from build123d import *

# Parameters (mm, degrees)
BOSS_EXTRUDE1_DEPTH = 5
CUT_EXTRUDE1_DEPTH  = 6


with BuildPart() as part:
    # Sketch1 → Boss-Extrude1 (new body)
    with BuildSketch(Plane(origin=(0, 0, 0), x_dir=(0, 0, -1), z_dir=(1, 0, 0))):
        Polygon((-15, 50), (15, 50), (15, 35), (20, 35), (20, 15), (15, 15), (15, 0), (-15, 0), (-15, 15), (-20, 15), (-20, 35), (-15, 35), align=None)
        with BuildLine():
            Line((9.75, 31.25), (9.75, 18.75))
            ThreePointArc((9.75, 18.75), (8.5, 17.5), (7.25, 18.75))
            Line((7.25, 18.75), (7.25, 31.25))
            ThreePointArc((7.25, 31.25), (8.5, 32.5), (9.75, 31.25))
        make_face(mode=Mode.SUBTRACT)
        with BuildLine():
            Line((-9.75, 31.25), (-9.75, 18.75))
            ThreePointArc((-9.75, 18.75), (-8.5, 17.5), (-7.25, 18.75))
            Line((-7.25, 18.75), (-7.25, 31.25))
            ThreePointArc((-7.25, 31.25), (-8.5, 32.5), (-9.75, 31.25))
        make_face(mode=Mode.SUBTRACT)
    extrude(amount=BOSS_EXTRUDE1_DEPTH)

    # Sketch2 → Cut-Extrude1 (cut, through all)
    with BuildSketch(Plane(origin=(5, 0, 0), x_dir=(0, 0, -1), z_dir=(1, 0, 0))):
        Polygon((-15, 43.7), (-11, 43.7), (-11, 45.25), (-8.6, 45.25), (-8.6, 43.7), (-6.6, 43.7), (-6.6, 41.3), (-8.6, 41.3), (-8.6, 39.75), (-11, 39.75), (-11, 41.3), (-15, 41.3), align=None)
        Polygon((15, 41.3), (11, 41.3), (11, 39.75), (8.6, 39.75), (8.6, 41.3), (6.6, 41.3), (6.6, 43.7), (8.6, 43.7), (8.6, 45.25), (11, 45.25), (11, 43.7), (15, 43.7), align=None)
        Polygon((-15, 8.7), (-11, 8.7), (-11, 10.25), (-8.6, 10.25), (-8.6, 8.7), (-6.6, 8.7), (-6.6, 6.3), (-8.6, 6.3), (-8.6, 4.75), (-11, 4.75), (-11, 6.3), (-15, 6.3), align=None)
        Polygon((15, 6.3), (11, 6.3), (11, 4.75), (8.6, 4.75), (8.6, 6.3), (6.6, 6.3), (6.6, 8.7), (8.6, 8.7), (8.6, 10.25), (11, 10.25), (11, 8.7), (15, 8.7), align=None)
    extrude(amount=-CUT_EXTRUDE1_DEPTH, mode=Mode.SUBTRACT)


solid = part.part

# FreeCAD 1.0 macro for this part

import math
import FreeCAD as App
import Part
import Sketcher

doc = App.newDocument("Part")
body = doc.addObject("PartDesign::Body", "Body")

sketch1 = doc.addObject("Sketcher::SketchObject", "Sketch")
body.addObject(sketch1)
sketch1.AttachmentSupport = (doc.YZ_Plane, [""])
sketch1.MapMode = "FlatFace"
sketch1.addGeometry(Part.LineSegment(App.Vector(50, -15, 0), App.Vector(50, 15, 0)), False)
sketch1.addGeometry(Part.LineSegment(App.Vector(50, 15, 0), App.Vector(35, 15, 0)), False)
sketch1.addGeometry(Part.LineSegment(App.Vector(35, 15, 0), App.Vector(35, 20, 0)), False)
sketch1.addGeometry(Part.LineSegment(App.Vector(35, 20, 0), App.Vector(15, 20, 0)), False)
sketch1.addGeometry(Part.LineSegment(App.Vector(15, 20, 0), App.Vector(15, 15, 0)), False)
sketch1.addGeometry(Part.LineSegment(App.Vector(15, 15, 0), App.Vector(0, 15, 0)), False)
sketch1.addGeometry(Part.LineSegment(App.Vector(0, 15, 0), App.Vector(0, -15, 0)), False)
sketch1.addGeometry(Part.LineSegment(App.Vector(0, -15, 0), App.Vector(15, -15, 0)), False)
sketch1.addGeometry(Part.LineSegment(App.Vector(15, -15, 0), App.Vector(15, -20, 0)), False)
sketch1.addGeometry(Part.LineSegment(App.Vector(15, -20, 0), App.Vector(35, -20, 0)), False)
sketch1.addGeometry(Part.LineSegment(App.Vector(35, -20, 0), App.Vector(35, -15, 0)), False)
sketch1.addGeometry(Part.LineSegment(App.Vector(35, -15, 0), App.Vector(50, -15, 0)), False)
sketch1.addGeometry(Part.LineSegment(App.Vector(31.2, -9.8, 0), App.Vector(18.8, -9.8, 0)), False)
sketch1.addGeometry(Part.ArcOfCircle(Part.Circle(App.Vector(18.8, -8.5, 0), App.Vector(0, 0, 1), 1.2), math.radians(90), math.radians(270)), False)
sketch1.addGeometry(Part.LineSegment(App.Vector(18.8, -7.2, 0), App.Vector(31.2, -7.2, 0)), False)
sketch1.addGeometry(Part.ArcOfCircle(Part.Circle(App.Vector(31.2, -8.5, 0), App.Vector(0, 0, 1), 1.2), math.radians(-90), math.radians(90)), False)
sketch1.addGeometry(Part.ArcOfCircle(Part.Circle(App.Vector(31.2, 8.5, 0), App.Vector(0, 0, 1), 1.2), math.radians(-90), math.radians(90)), False)
sketch1.addGeometry(Part.LineSegment(App.Vector(31.2, 7.2, 0), App.Vector(18.8, 7.2, 0)), False)
sketch1.addGeometry(Part.ArcOfCircle(Part.Circle(App.Vector(18.8, 8.5, 0), App.Vector(0, 0, 1), 1.2), math.radians(90), math.radians(270)), False)
sketch1.addGeometry(Part.LineSegment(App.Vector(18.8, 9.8, 0), App.Vector(31.2, 9.8, 0)), False)
sketch1.addConstraint(Sketcher.Constraint("Coincident", 0, 2, 1, 1))
sketch1.addConstraint(Sketcher.Constraint("Coincident", 1, 2, 2, 1))
sketch1.addConstraint(Sketcher.Constraint("Coincident", 2, 2, 3, 1))
sketch1.addConstraint(Sketcher.Constraint("Coincident", 3, 2, 4, 1))
sketch1.addConstraint(Sketcher.Constraint("Coincident", 4, 2, 5, 1))
sketch1.addConstraint(Sketcher.Constraint("Coincident", 5, 2, 6, 1))
sketch1.addConstraint(Sketcher.Constraint("Coincident", 6, 2, 7, 1))
sketch1.addConstraint(Sketcher.Constraint("Coincident", 7, 2, 8, 1))
sketch1.addConstraint(Sketcher.Constraint("Coincident", 8, 2, 9, 1))
sketch1.addConstraint(Sketcher.Constraint("Coincident", 9, 2, 10, 1))
sketch1.addConstraint(Sketcher.Constraint("Coincident", 10, 2, 11, 1))
sketch1.addConstraint(Sketcher.Constraint("Coincident", 11, 2, 0, 1))
sketch1.addConstraint(Sketcher.Constraint("Tangent", 12, 2, 13, 2))
sketch1.addConstraint(Sketcher.Constraint("Tangent", 13, 1, 14, 1))
sketch1.addConstraint(Sketcher.Constraint("Tangent", 14, 2, 15, 2))
sketch1.addConstraint(Sketcher.Constraint("Tangent", 15, 1, 12, 1))
sketch1.addConstraint(Sketcher.Constraint("Tangent", 16, 1, 17, 1))
sketch1.addConstraint(Sketcher.Constraint("Tangent", 17, 2, 18, 2))
sketch1.addConstraint(Sketcher.Constraint("Tangent", 18, 1, 19, 1))
sketch1.addConstraint(Sketcher.Constraint("Tangent", 19, 2, 16, 2))
sketch1.addConstraint(Sketcher.Constraint("Vertical", 0))
sketch1.addConstraint(Sketcher.Constraint("Horizontal", 1))
sketch1.addConstraint(Sketcher.Constraint("Vertical", 2))
sketch1.addConstraint(Sketcher.Constraint("Horizontal", 3))
sketch1.addConstraint(Sketcher.Constraint("Vertical", 4))
sketch1.addConstraint(Sketcher.Constraint("Horizontal", 5))
sketch1.addConstraint(Sketcher.Constraint("Vertical", 6))
sketch1.addConstraint(Sketcher.Constraint("Horizontal", 7))
sketch1.addConstraint(Sketcher.Constraint("Vertical", 8))
sketch1.addConstraint(Sketcher.Constraint("Horizontal", 9))
sketch1.addConstraint(Sketcher.Constraint("Vertical", 10))
sketch1.addConstraint(Sketcher.Constraint("Horizontal", 11))
sketch1.addConstraint(Sketcher.Constraint("Horizontal", 12))
sketch1.addConstraint(Sketcher.Constraint("Horizontal", 14))
sketch1.addConstraint(Sketcher.Constraint("Horizontal", 17))
sketch1.addConstraint(Sketcher.Constraint("Horizontal", 19))
sketch1.addConstraint(Sketcher.Constraint("Equal", 15, 16))
sketch1.addConstraint(Sketcher.Constraint("Symmetric", 5, 2, 6, 2, -1, 1))
sketch1.addConstraint(Sketcher.Constraint("Symmetric", 15, 3, 16, 3, -1))
sketch1.addConstraint(Sketcher.Constraint("Symmetric", 3, 2, 8, 2, -1))
sketch1.addConstraint(Sketcher.Constraint("Symmetric", 1, 2, 10, 2, -1))
sketch1.addConstraint(Sketcher.Constraint("Horizontal", 1, 2, 4, 2))
sketch1.addConstraint(Sketcher.Constraint("Vertical", 13, 3, 18, 3))
sketch1.addConstraint(Sketcher.Constraint("Equal", 1, 5))
sketch1.addConstraint(Sketcher.Constraint("DistanceX", 1, 2, 1, 1, 15.0))
sketch1.addConstraint(Sketcher.Constraint("DistanceX", 3, 2, 3, 1, 20.0))
sketch1.addConstraint(Sketcher.Constraint("DistanceY", 0, 1, 0, 2, 30.0))
sketch1.addConstraint(Sketcher.Constraint("DistanceY", 2, 1, 2, 2, 5.0))
sketch1.addConstraint(Sketcher.Constraint("Radius", 13, 1.25))
sketch1.addConstraint(Sketcher.Constraint("DistanceX", 12, 2, 12, 1, 12.5))
sketch1.addConstraint(Sketcher.Constraint("DistanceY", 15, 3, 16, 3, 17.0))
sketch1.addConstraint(Sketcher.Constraint("DistanceX", -1, 1, 13, 3, 18.75))
pad1 = doc.addObject("PartDesign::Pad", "Pad")
body.addObject(pad1)
pad1.Profile = sketch1
pad1.Length = 5

sketch2 = doc.addObject("Sketcher::SketchObject", "Sketch001")
body.addObject(sketch2)
sketch2.AttachmentSupport = (doc.YZ_Plane, [""])
sketch2.MapMode = "FlatFace"
sketch2.AttachmentOffset = App.Placement(App.Vector(0, 0, 5), App.Rotation())
sketch2.addGeometry(Part.LineSegment(App.Vector(43.7, 11, 0), App.Vector(43.7, 15, 0)), False)
sketch2.addGeometry(Part.LineSegment(App.Vector(43.7, 15, 0), App.Vector(41.3, 15, 0)), False)
sketch2.addGeometry(Part.LineSegment(App.Vector(41.3, 15, 0), App.Vector(41.3, 11, 0)), False)
sketch2.addGeometry(Part.LineSegment(App.Vector(41.3, 11, 0), App.Vector(39.8, 11, 0)), False)
sketch2.addGeometry(Part.LineSegment(App.Vector(39.8, 11, 0), App.Vector(39.8, 8.6, 0)), False)
sketch2.addGeometry(Part.LineSegment(App.Vector(39.8, 8.6, 0), App.Vector(41.3, 8.6, 0)), False)
sketch2.addGeometry(Part.LineSegment(App.Vector(41.3, 8.6, 0), App.Vector(41.3, 6.6, 0)), False)
sketch2.addGeometry(Part.LineSegment(App.Vector(41.3, 6.6, 0), App.Vector(43.7, 6.6, 0)), False)
sketch2.addGeometry(Part.LineSegment(App.Vector(43.7, 6.6, 0), App.Vector(43.7, 8.6, 0)), False)
sketch2.addGeometry(Part.LineSegment(App.Vector(43.7, 8.6, 0), App.Vector(45.2, 8.6, 0)), False)
sketch2.addGeometry(Part.LineSegment(App.Vector(45.2, 8.6, 0), App.Vector(45.2, 11, 0)), False)
sketch2.addGeometry(Part.LineSegment(App.Vector(45.2, 11, 0), App.Vector(43.7, 11, 0)), False)
sketch2.addGeometry(Part.LineSegment(App.Vector(41.3, -11, 0), App.Vector(41.3, -15, 0)), False)
sketch2.addGeometry(Part.LineSegment(App.Vector(41.3, -15, 0), App.Vector(43.7, -15, 0)), False)
sketch2.addGeometry(Part.LineSegment(App.Vector(43.7, -15, 0), App.Vector(43.7, -11, 0)), False)
sketch2.addGeometry(Part.LineSegment(App.Vector(43.7, -11, 0), App.Vector(45.2, -11, 0)), False)
sketch2.addGeometry(Part.LineSegment(App.Vector(45.2, -11, 0), App.Vector(45.2, -8.6, 0)), False)
sketch2.addGeometry(Part.LineSegment(App.Vector(45.2, -8.6, 0), App.Vector(43.7, -8.6, 0)), False)
sketch2.addGeometry(Part.LineSegment(App.Vector(43.7, -8.6, 0), App.Vector(43.7, -6.6, 0)), False)
sketch2.addGeometry(Part.LineSegment(App.Vector(43.7, -6.6, 0), App.Vector(41.3, -6.6, 0)), False)
sketch2.addGeometry(Part.LineSegment(App.Vector(41.3, -6.6, 0), App.Vector(41.3, -8.6, 0)), False)
sketch2.addGeometry(Part.LineSegment(App.Vector(41.3, -8.6, 0), App.Vector(39.8, -8.6, 0)), False)
sketch2.addGeometry(Part.LineSegment(App.Vector(39.8, -8.6, 0), App.Vector(39.8, -11, 0)), False)
sketch2.addGeometry(Part.LineSegment(App.Vector(39.8, -11, 0), App.Vector(41.3, -11, 0)), False)
sketch2.addGeometry(Part.LineSegment(App.Vector(8.7, 11, 0), App.Vector(8.7, 15, 0)), False)
sketch2.addGeometry(Part.LineSegment(App.Vector(8.7, 15, 0), App.Vector(6.3, 15, 0)), False)
sketch2.addGeometry(Part.LineSegment(App.Vector(6.3, 15, 0), App.Vector(6.3, 11, 0)), False)
sketch2.addGeometry(Part.LineSegment(App.Vector(6.3, 11, 0), App.Vector(4.8, 11, 0)), False)
sketch2.addGeometry(Part.LineSegment(App.Vector(4.8, 11, 0), App.Vector(4.8, 8.6, 0)), False)
sketch2.addGeometry(Part.LineSegment(App.Vector(4.8, 8.6, 0), App.Vector(6.3, 8.6, 0)), False)
sketch2.addGeometry(Part.LineSegment(App.Vector(6.3, 8.6, 0), App.Vector(6.3, 6.6, 0)), False)
sketch2.addGeometry(Part.LineSegment(App.Vector(6.3, 6.6, 0), App.Vector(8.7, 6.6, 0)), False)
sketch2.addGeometry(Part.LineSegment(App.Vector(8.7, 6.6, 0), App.Vector(8.7, 8.6, 0)), False)
sketch2.addGeometry(Part.LineSegment(App.Vector(8.7, 8.6, 0), App.Vector(10.2, 8.6, 0)), False)
sketch2.addGeometry(Part.LineSegment(App.Vector(10.2, 8.6, 0), App.Vector(10.2, 11, 0)), False)
sketch2.addGeometry(Part.LineSegment(App.Vector(10.2, 11, 0), App.Vector(8.7, 11, 0)), False)
sketch2.addGeometry(Part.LineSegment(App.Vector(6.3, -11, 0), App.Vector(6.3, -15, 0)), False)
sketch2.addGeometry(Part.LineSegment(App.Vector(6.3, -15, 0), App.Vector(8.7, -15, 0)), False)
sketch2.addGeometry(Part.LineSegment(App.Vector(8.7, -15, 0), App.Vector(8.7, -11, 0)), False)
sketch2.addGeometry(Part.LineSegment(App.Vector(8.7, -11, 0), App.Vector(10.2, -11, 0)), False)
sketch2.addGeometry(Part.LineSegment(App.Vector(10.2, -11, 0), App.Vector(10.2, -8.6, 0)), False)
sketch2.addGeometry(Part.LineSegment(App.Vector(10.2, -8.6, 0), App.Vector(8.7, -8.6, 0)), False)
sketch2.addGeometry(Part.LineSegment(App.Vector(8.7, -8.6, 0), App.Vector(8.7, -6.6, 0)), False)
sketch2.addGeometry(Part.LineSegment(App.Vector(8.7, -6.6, 0), App.Vector(6.3, -6.6, 0)), False)
sketch2.addGeometry(Part.LineSegment(App.Vector(6.3, -6.6, 0), App.Vector(6.3, -8.6, 0)), False)
sketch2.addGeometry(Part.LineSegment(App.Vector(6.3, -8.6, 0), App.Vector(4.8, -8.6, 0)), False)
sketch2.addGeometry(Part.LineSegment(App.Vector(4.8, -8.6, 0), App.Vector(4.8, -11, 0)), False)
sketch2.addGeometry(Part.LineSegment(App.Vector(4.8, -11, 0), App.Vector(6.3, -11, 0)), False)
sketch2.addConstraint(Sketcher.Constraint("Coincident", 0, 2, 1, 1))
sketch2.addConstraint(Sketcher.Constraint("Coincident", 1, 2, 2, 1))
sketch2.addConstraint(Sketcher.Constraint("Coincident", 2, 2, 3, 1))
sketch2.addConstraint(Sketcher.Constraint("Coincident", 3, 2, 4, 1))
sketch2.addConstraint(Sketcher.Constraint("Coincident", 4, 2, 5, 1))
sketch2.addConstraint(Sketcher.Constraint("Coincident", 5, 2, 6, 1))
sketch2.addConstraint(Sketcher.Constraint("Coincident", 6, 2, 7, 1))
sketch2.addConstraint(Sketcher.Constraint("Coincident", 7, 2, 8, 1))
sketch2.addConstraint(Sketcher.Constraint("Coincident", 8, 2, 9, 1))
sketch2.addConstraint(Sketcher.Constraint("Coincident", 9, 2, 10, 1))
sketch2.addConstraint(Sketcher.Constraint("Coincident", 10, 2, 11, 1))
sketch2.addConstraint(Sketcher.Constraint("Coincident", 11, 2, 0, 1))
sketch2.addConstraint(Sketcher.Constraint("Coincident", 12, 2, 13, 1))
sketch2.addConstraint(Sketcher.Constraint("Coincident", 13, 2, 14, 1))
sketch2.addConstraint(Sketcher.Constraint("Coincident", 14, 2, 15, 1))
sketch2.addConstraint(Sketcher.Constraint("Coincident", 15, 2, 16, 1))
sketch2.addConstraint(Sketcher.Constraint("Coincident", 16, 2, 17, 1))
sketch2.addConstraint(Sketcher.Constraint("Coincident", 17, 2, 18, 1))
sketch2.addConstraint(Sketcher.Constraint("Coincident", 18, 2, 19, 1))
sketch2.addConstraint(Sketcher.Constraint("Coincident", 19, 2, 20, 1))
sketch2.addConstraint(Sketcher.Constraint("Coincident", 20, 2, 21, 1))
sketch2.addConstraint(Sketcher.Constraint("Coincident", 21, 2, 22, 1))
sketch2.addConstraint(Sketcher.Constraint("Coincident", 22, 2, 23, 1))
sketch2.addConstraint(Sketcher.Constraint("Coincident", 23, 2, 12, 1))
sketch2.addConstraint(Sketcher.Constraint("Coincident", 24, 2, 25, 1))
sketch2.addConstraint(Sketcher.Constraint("Coincident", 25, 2, 26, 1))
sketch2.addConstraint(Sketcher.Constraint("Coincident", 26, 2, 27, 1))
sketch2.addConstraint(Sketcher.Constraint("Coincident", 27, 2, 28, 1))
sketch2.addConstraint(Sketcher.Constraint("Coincident", 28, 2, 29, 1))
sketch2.addConstraint(Sketcher.Constraint("Coincident", 29, 2, 30, 1))
sketch2.addConstraint(Sketcher.Constraint("Coincident", 30, 2, 31, 1))
sketch2.addConstraint(Sketcher.Constraint("Coincident", 31, 2, 32, 1))
sketch2.addConstraint(Sketcher.Constraint("Coincident", 32, 2, 33, 1))
sketch2.addConstraint(Sketcher.Constraint("Coincident", 33, 2, 34, 1))
sketch2.addConstraint(Sketcher.Constraint("Coincident", 34, 2, 35, 1))
sketch2.addConstraint(Sketcher.Constraint("Coincident", 35, 2, 24, 1))
sketch2.addConstraint(Sketcher.Constraint("Coincident", 36, 2, 37, 1))
sketch2.addConstraint(Sketcher.Constraint("Coincident", 37, 2, 38, 1))
sketch2.addConstraint(Sketcher.Constraint("Coincident", 38, 2, 39, 1))
sketch2.addConstraint(Sketcher.Constraint("Coincident", 39, 2, 40, 1))
sketch2.addConstraint(Sketcher.Constraint("Coincident", 40, 2, 41, 1))
sketch2.addConstraint(Sketcher.Constraint("Coincident", 41, 2, 42, 1))
sketch2.addConstraint(Sketcher.Constraint("Coincident", 42, 2, 43, 1))
sketch2.addConstraint(Sketcher.Constraint("Coincident", 43, 2, 44, 1))
sketch2.addConstraint(Sketcher.Constraint("Coincident", 44, 2, 45, 1))
sketch2.addConstraint(Sketcher.Constraint("Coincident", 45, 2, 46, 1))
sketch2.addConstraint(Sketcher.Constraint("Coincident", 46, 2, 47, 1))
sketch2.addConstraint(Sketcher.Constraint("Coincident", 47, 2, 36, 1))
sketch2.addConstraint(Sketcher.Constraint("Vertical", 0))
sketch2.addConstraint(Sketcher.Constraint("Horizontal", 1))
sketch2.addConstraint(Sketcher.Constraint("Vertical", 2))
sketch2.addConstraint(Sketcher.Constraint("Horizontal", 3))
sketch2.addConstraint(Sketcher.Constraint("Vertical", 4))
sketch2.addConstraint(Sketcher.Constraint("Horizontal", 5))
sketch2.addConstraint(Sketcher.Constraint("Vertical", 6))
sketch2.addConstraint(Sketcher.Constraint("Horizontal", 7))
sketch2.addConstraint(Sketcher.Constraint("Vertical", 8))
sketch2.addConstraint(Sketcher.Constraint("Horizontal", 9))
sketch2.addConstraint(Sketcher.Constraint("Vertical", 10))
sketch2.addConstraint(Sketcher.Constraint("Horizontal", 11))
sketch2.addConstraint(Sketcher.Constraint("Vertical", 12))
sketch2.addConstraint(Sketcher.Constraint("Horizontal", 13))
sketch2.addConstraint(Sketcher.Constraint("Vertical", 14))
sketch2.addConstraint(Sketcher.Constraint("Horizontal", 15))
sketch2.addConstraint(Sketcher.Constraint("Vertical", 16))
sketch2.addConstraint(Sketcher.Constraint("Horizontal", 17))
sketch2.addConstraint(Sketcher.Constraint("Vertical", 18))
sketch2.addConstraint(Sketcher.Constraint("Horizontal", 19))
sketch2.addConstraint(Sketcher.Constraint("Vertical", 20))
sketch2.addConstraint(Sketcher.Constraint("Horizontal", 21))
sketch2.addConstraint(Sketcher.Constraint("Vertical", 22))
sketch2.addConstraint(Sketcher.Constraint("Horizontal", 23))
sketch2.addConstraint(Sketcher.Constraint("Vertical", 24))
sketch2.addConstraint(Sketcher.Constraint("Horizontal", 25))
sketch2.addConstraint(Sketcher.Constraint("Vertical", 26))
sketch2.addConstraint(Sketcher.Constraint("Horizontal", 27))
sketch2.addConstraint(Sketcher.Constraint("Vertical", 28))
sketch2.addConstraint(Sketcher.Constraint("Horizontal", 29))
sketch2.addConstraint(Sketcher.Constraint("Vertical", 30))
sketch2.addConstraint(Sketcher.Constraint("Horizontal", 31))
sketch2.addConstraint(Sketcher.Constraint("Vertical", 32))
sketch2.addConstraint(Sketcher.Constraint("Horizontal", 33))
sketch2.addConstraint(Sketcher.Constraint("Vertical", 34))
sketch2.addConstraint(Sketcher.Constraint("Horizontal", 35))
sketch2.addConstraint(Sketcher.Constraint("Vertical", 36))
sketch2.addConstraint(Sketcher.Constraint("Horizontal", 37))
sketch2.addConstraint(Sketcher.Constraint("Vertical", 38))
sketch2.addConstraint(Sketcher.Constraint("Horizontal", 39))
sketch2.addConstraint(Sketcher.Constraint("Vertical", 40))
sketch2.addConstraint(Sketcher.Constraint("Horizontal", 41))
sketch2.addConstraint(Sketcher.Constraint("Vertical", 42))
sketch2.addConstraint(Sketcher.Constraint("Horizontal", 43))
sketch2.addConstraint(Sketcher.Constraint("Vertical", 44))
sketch2.addConstraint(Sketcher.Constraint("Horizontal", 45))
sketch2.addConstraint(Sketcher.Constraint("Vertical", 46))
sketch2.addConstraint(Sketcher.Constraint("Horizontal", 47))
sketch2.addConstraint(Sketcher.Constraint("Symmetric", 1, 2, 12, 2, -1))
sketch2.addConstraint(Sketcher.Constraint("Symmetric", 11, 2, 14, 2, -1))
sketch2.addConstraint(Sketcher.Constraint("Symmetric", 9, 2, 16, 2, -1))
sketch2.addConstraint(Sketcher.Constraint("Symmetric", 7, 2, 18, 2, -1))
sketch2.addConstraint(Sketcher.Constraint("Symmetric", 5, 2, 20, 2, -1))
sketch2.addConstraint(Sketcher.Constraint("Symmetric", 3, 2, 22, 2, -1))
sketch2.addConstraint(Sketcher.Constraint("Symmetric", 25, 2, 36, 2, -1))
sketch2.addConstraint(Sketcher.Constraint("Symmetric", 35, 2, 38, 2, -1))
sketch2.addConstraint(Sketcher.Constraint("Symmetric", 33, 2, 40, 2, -1))
sketch2.addConstraint(Sketcher.Constraint("Symmetric", 31, 2, 42, 2, -1))
sketch2.addConstraint(Sketcher.Constraint("Symmetric", 29, 2, 44, 2, -1))
sketch2.addConstraint(Sketcher.Constraint("Symmetric", 27, 2, 46, 2, -1))
sketch2.addConstraint(Sketcher.Constraint("Horizontal", 5, 2, 8, 2))
sketch2.addConstraint(Sketcher.Constraint("Horizontal", 3, 2, 10, 2))
sketch2.addConstraint(Sketcher.Constraint("Horizontal", 1, 2, 24, 2))
sketch2.addConstraint(Sketcher.Constraint("Horizontal", 11, 2, 26, 2))
sketch2.addConstraint(Sketcher.Constraint("Horizontal", 9, 2, 28, 2))
sketch2.addConstraint(Sketcher.Constraint("Horizontal", 7, 2, 30, 2))
sketch2.addConstraint(Sketcher.Constraint("Horizontal", 29, 2, 32, 2))
sketch2.addConstraint(Sketcher.Constraint("Horizontal", 27, 2, 34, 2))
sketch2.addConstraint(Sketcher.Constraint("Vertical", 2, 2, 5, 2))
sketch2.addConstraint(Sketcher.Constraint("Vertical", 0, 2, 7, 2))
sketch2.addConstraint(Sketcher.Constraint("Vertical", 26, 2, 29, 2))
sketch2.addConstraint(Sketcher.Constraint("Vertical", 24, 2, 31, 2))
sketch2.addConstraint(Sketcher.Constraint("Equal", 5, 9))
sketch2.addConstraint(Sketcher.Constraint("Equal", 19, 25))
sketch2.addConstraint(Sketcher.Constraint("Equal", 23, 27))
sketch2.addConstraint(Sketcher.Constraint("Equal", 29, 33))
sketch2.addConstraint(Sketcher.Constraint("Equal", 43, 4))
sketch2.addConstraint(Sketcher.Constraint("DistanceY", 0, 1, 0, 2, 4.0))
sketch2.addConstraint(Sketcher.Constraint("DistanceY", 6, 2, 6, 1, 2.0))
sketch2.addConstraint(Sketcher.Constraint("DistanceX", 1, 2, 1, 1, 2.4))
sketch2.addConstraint(Sketcher.Constraint("DistanceY", -1, 1, 0, 2, 15.0))
sketch2.addConstraint(Sketcher.Constraint("DistanceX", 25, 2, 1, 2, 35.0))
sketch2.addConstraint(Sketcher.Constraint("DistanceX", 3, 2, 3, 1, 1.55))
sketch2.addConstraint(Sketcher.Constraint("DistanceX", -1, 1, 0, 2, 43.7))
pocket1 = doc.addObject("PartDesign::Pocket", "Pocket")
body.addObject(pocket1)
pocket1.Profile = sketch2
pocket1.Type = "ThroughAll"

doc.recompute()
